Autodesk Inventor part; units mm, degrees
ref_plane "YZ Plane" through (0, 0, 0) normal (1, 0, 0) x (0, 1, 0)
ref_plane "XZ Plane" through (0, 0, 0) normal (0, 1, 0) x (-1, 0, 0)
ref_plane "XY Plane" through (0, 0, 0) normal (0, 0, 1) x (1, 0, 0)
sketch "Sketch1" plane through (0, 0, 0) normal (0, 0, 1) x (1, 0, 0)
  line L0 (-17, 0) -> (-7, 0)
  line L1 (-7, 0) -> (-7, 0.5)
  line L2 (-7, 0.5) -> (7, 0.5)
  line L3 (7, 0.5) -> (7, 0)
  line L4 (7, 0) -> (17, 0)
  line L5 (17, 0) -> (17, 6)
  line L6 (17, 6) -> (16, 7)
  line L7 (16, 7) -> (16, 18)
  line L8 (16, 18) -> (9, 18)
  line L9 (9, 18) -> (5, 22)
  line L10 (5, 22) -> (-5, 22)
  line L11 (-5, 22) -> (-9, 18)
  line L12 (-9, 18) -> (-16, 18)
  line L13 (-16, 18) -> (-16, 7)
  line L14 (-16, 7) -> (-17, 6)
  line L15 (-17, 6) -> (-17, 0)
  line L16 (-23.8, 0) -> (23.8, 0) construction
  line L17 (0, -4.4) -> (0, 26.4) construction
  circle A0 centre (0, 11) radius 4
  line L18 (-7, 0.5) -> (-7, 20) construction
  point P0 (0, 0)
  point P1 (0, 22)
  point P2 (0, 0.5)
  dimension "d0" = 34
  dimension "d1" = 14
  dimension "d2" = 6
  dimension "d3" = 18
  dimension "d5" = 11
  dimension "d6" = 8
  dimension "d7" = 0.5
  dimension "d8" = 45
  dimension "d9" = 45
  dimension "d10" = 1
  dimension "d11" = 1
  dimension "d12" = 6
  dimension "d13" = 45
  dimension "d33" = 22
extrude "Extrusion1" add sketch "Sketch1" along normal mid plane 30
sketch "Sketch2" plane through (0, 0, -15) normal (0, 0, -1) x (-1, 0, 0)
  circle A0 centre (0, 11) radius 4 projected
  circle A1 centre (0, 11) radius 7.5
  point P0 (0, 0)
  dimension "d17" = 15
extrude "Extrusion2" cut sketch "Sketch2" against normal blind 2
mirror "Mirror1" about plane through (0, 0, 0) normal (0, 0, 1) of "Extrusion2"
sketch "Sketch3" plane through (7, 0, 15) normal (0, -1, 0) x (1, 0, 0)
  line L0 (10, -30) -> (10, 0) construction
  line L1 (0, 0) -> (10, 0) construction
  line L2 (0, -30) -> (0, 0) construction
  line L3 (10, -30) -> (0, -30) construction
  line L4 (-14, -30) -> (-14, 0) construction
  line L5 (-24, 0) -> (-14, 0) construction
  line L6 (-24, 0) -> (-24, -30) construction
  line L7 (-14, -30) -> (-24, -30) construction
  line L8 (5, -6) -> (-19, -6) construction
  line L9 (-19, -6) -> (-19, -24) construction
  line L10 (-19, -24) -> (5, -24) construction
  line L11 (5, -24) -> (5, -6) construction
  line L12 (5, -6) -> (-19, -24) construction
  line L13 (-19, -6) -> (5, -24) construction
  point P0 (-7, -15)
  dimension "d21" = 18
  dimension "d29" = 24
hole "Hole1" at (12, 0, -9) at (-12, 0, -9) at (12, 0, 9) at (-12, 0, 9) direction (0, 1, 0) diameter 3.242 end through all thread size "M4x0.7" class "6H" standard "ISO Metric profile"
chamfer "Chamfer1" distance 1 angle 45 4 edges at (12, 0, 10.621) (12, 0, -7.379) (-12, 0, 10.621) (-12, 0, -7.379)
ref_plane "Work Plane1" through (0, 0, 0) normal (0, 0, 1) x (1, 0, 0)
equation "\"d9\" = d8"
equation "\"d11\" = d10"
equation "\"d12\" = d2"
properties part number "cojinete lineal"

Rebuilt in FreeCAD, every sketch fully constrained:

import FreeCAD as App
import Part
import Sketcher


def edges_at(feature, points):
    """Names of the edges that pass closest to the given points."""
    edges = feature.Shape.Edges
    near = lambda p: min(range(len(edges)), key=lambda i: edges[i].distToShape(Part.Vertex(*p))[0])
    return sorted({f"Edge{near(p) + 1}" for p in points})

doc = App.newDocument("Part")
body = doc.addObject("PartDesign::Body", "Body")

# Sketch on XY plane
sketch1 = body.newObject("Sketcher::SketchObject", "Sketch")
sketch1.AttachmentSupport = (doc.getObject("XY_Plane"), [""])
sketch1.MapMode = "FlatFace"
sketch1.addGeometry(Part.LineSegment(App.Vector(-17, 6, 0), App.Vector(-17, 0, 0)), False)
sketch1.addGeometry(Part.LineSegment(App.Vector(-17, 0, 0), App.Vector(-7, 0, 0)), False)
sketch1.addGeometry(Part.LineSegment(App.Vector(-7, 0, 0), App.Vector(-7, 0.5, 0)), False)
sketch1.addGeometry(Part.LineSegment(App.Vector(-7, 0.5, 0), App.Vector(7, 0.5, 0)), False)
sketch1.addGeometry(Part.LineSegment(App.Vector(7, 0.5, 0), App.Vector(7, 0, 0)), False)
sketch1.addGeometry(Part.LineSegment(App.Vector(7, 0, 0), App.Vector(17, 0, 0)), False)
sketch1.addGeometry(Part.LineSegment(App.Vector(17, 0, 0), App.Vector(17, 6, 0)), False)
sketch1.addGeometry(Part.LineSegment(App.Vector(17, 6, 0), App.Vector(16, 7, 0)), False)
sketch1.addGeometry(Part.LineSegment(App.Vector(16, 7, 0), App.Vector(16, 18, 0)), False)
sketch1.addGeometry(Part.LineSegment(App.Vector(16, 18, 0), App.Vector(9, 18, 0)), False)
sketch1.addGeometry(Part.LineSegment(App.Vector(9, 18, 0), App.Vector(5, 22, 0)), False)
sketch1.addGeometry(Part.LineSegment(App.Vector(5, 22, 0), App.Vector(-5, 22, 0)), False)
sketch1.addGeometry(Part.LineSegment(App.Vector(-5, 22, 0), App.Vector(-9, 18, 0)), False)
sketch1.addGeometry(Part.LineSegment(App.Vector(-9, 18, 0), App.Vector(-16, 18, 0)), False)
sketch1.addGeometry(Part.LineSegment(App.Vector(-16, 18, 0), App.Vector(-16, 7, 0)), False)
sketch1.addGeometry(Part.LineSegment(App.Vector(-16, 7, 0), App.Vector(-17, 6, 0)), False)
sketch1.addGeometry(Part.Circle(App.Vector(0, 11, 0), App.Vector(0, 0, 1), 4), False)
sketch1.addConstraint(Sketcher.Constraint("Coincident", 0, 2, 1, 1))
sketch1.addConstraint(Sketcher.Constraint("Coincident", 1, 2, 2, 1))
sketch1.addConstraint(Sketcher.Constraint("Coincident", 2, 2, 3, 1))
sketch1.addConstraint(Sketcher.Constraint("Coincident", 3, 2, 4, 1))
sketch1.addConstraint(Sketcher.Constraint("Coincident", 4, 2, 5, 1))
sketch1.addConstraint(Sketcher.Constraint("Coincident", 5, 2, 6, 1))
sketch1.addConstraint(Sketcher.Constraint("Coincident", 6, 2, 7, 1))
sketch1.addConstraint(Sketcher.Constraint("Coincident", 7, 2, 8, 1))
sketch1.addConstraint(Sketcher.Constraint("Coincident", 8, 2, 9, 1))
sketch1.addConstraint(Sketcher.Constraint("Coincident", 9, 2, 10, 1))
sketch1.addConstraint(Sketcher.Constraint("Coincident", 10, 2, 11, 1))
sketch1.addConstraint(Sketcher.Constraint("Coincident", 11, 2, 12, 1))
sketch1.addConstraint(Sketcher.Constraint("Coincident", 12, 2, 13, 1))
sketch1.addConstraint(Sketcher.Constraint("Coincident", 13, 2, 14, 1))
sketch1.addConstraint(Sketcher.Constraint("Coincident", 14, 2, 15, 1))
sketch1.addConstraint(Sketcher.Constraint("Coincident", 15, 2, 0, 1))
sketch1.addConstraint(Sketcher.Constraint("Vertical", 0))
sketch1.addConstraint(Sketcher.Constraint("Horizontal", 1))
sketch1.addConstraint(Sketcher.Constraint("Vertical", 2))
sketch1.addConstraint(Sketcher.Constraint("Horizontal", 3))
sketch1.addConstraint(Sketcher.Constraint("Vertical", 4))
sketch1.addConstraint(Sketcher.Constraint("Horizontal", 5))
sketch1.addConstraint(Sketcher.Constraint("Vertical", 6))
sketch1.addConstraint(Sketcher.Constraint("Vertical", 8))
sketch1.addConstraint(Sketcher.Constraint("Horizontal", 9))
sketch1.addConstraint(Sketcher.Constraint("Horizontal", 11))
sketch1.addConstraint(Sketcher.Constraint("Horizontal", 13))
sketch1.addConstraint(Sketcher.Constraint("Vertical", 14))
sketch1.addConstraint(Sketcher.Constraint("Symmetric", 1, 2, 4, 2, -1, 1))
sketch1.addConstraint(Sketcher.Constraint("Symmetric", 0, 2, 5, 2, -2))
sketch1.addConstraint(Sketcher.Constraint("Symmetric", 9, 2, 12, 2, -2))
sketch1.addConstraint(Sketcher.Constraint("Symmetric", 7, 2, 14, 2, -2))
sketch1.addConstraint(Sketcher.Constraint("PointOnObject", 16, 3, -2))
sketch1.addConstraint(Sketcher.Constraint("Parallel", 7, 10))
sketch1.addConstraint(Sketcher.Constraint("Perpendicular", 10, 12))
sketch1.addConstraint(Sketcher.Constraint("Parallel", 12, 15))
sketch1.addConstraint(Sketcher.Constraint("Horizontal", 6, 2, 15, 2))
sketch1.addConstraint(Sketcher.Constraint("Equal", 5, 11))
sketch1.addConstraint(Sketcher.Constraint("Diameter", 16, 8.0))
sketch1.addConstraint(Sketcher.Constraint("DistanceX", 3, 1, 3, 2, 14.0))
sketch1.addConstraint(Sketcher.Constraint("DistanceY", 0, 2, 0, 1, 6.0))
sketch1.addConstraint(Sketcher.Constraint("DistanceY", 8, 1, 8, 2, 11.0))
sketch1.addConstraint(Sketcher.Constraint("DistanceY", 2, 1, 2, 2, 0.5))
sketch1.addConstraint(Sketcher.Constraint("DistanceY", -1, 1, 16, 3, 11.0))
sketch1.addConstraint(Sketcher.Constraint("DistanceY", -1, 1, 8, 2, 18.0))
sketch1.addConstraint(Sketcher.Constraint("DistanceY", -1, 1, 10, 2, 22.0))
sketch1.addConstraint(Sketcher.Constraint("DistanceX", 9, 2, 6, 2, 8.0))
pad1 = body.newObject("PartDesign::Pad", "Pad")
pad1.Profile = sketch1
pad1.Length = 30
pad1.Midplane = True

# Sketch on XY plane
sketch2 = body.newObject("Sketcher::SketchObject", "Sketch001")
sketch2.AttachmentSupport = (doc.getObject("XY_Plane"), [""])
sketch2.MapMode = "FlatFace"
sketch2.AttachmentOffset = App.Placement(App.Vector(0, 0, -15), App.Rotation())
sketch2.addGeometry(Part.Circle(App.Vector(0, 11, 0), App.Vector(0, 0, 1), 7.5), False)
sketch2.addGeometry(Part.Circle(App.Vector(0, 11, 0), App.Vector(0, 0, 1), 4), False)
sketch2.addConstraint(Sketcher.Constraint("Coincident", 1, 3, 0, 3))
sketch2.addConstraint(Sketcher.Constraint("PointOnObject", 0, 3, -2))
sketch2.addConstraint(Sketcher.Constraint("Diameter", 0, 15.0))
sketch2.addConstraint(Sketcher.Constraint("Diameter", 1, 8.0))
sketch2.addConstraint(Sketcher.Constraint("DistanceY", -1, 1, 0, 3, 11.0))
pocket1 = body.newObject("PartDesign::Pocket", "Pocket")
pocket1.Profile = sketch2
pocket1.Length = 2
pocket1.Reversed = True
doc.recompute()

mirrored = body.newObject("PartDesign::Mirrored", "Mirrored")
mirrored.Originals = [pocket1]
mirrored.MirrorPlane = (doc.getObject("XY_Plane"), [""])
body.Tip = mirrored

# Sketch on XZ plane
sketch3 = body.newObject("Sketcher::SketchObject", "Sketch002")
sketch3.AttachmentSupport = (doc.getObject("XZ_Plane"), [""])
sketch3.MapMode = "FlatFace"
sketch3.addGeometry(Part.Circle(App.Vector(12, -9, 0), App.Vector(0, 0, 1), 1.6), False)
sketch3.addGeometry(Part.Circle(App.Vector(-12, -9, 0), App.Vector(0, 0, 1), 1.6), False)
sketch3.addGeometry(Part.Circle(App.Vector(12, 9, 0), App.Vector(0, 0, 1), 1.6), False)
sketch3.addGeometry(Part.Circle(App.Vector(-12, 9, 0), App.Vector(0, 0, 1), 1.6), False)
sketch3.addConstraint(Sketcher.Constraint("Equal", 0, 1))
sketch3.addConstraint(Sketcher.Constraint("Equal", 1, 2))
sketch3.addConstraint(Sketcher.Constraint("Equal", 2, 3))
sketch3.addConstraint(Sketcher.Constraint("Symmetric", 1, 3, 2, 3, -1, 1))
sketch3.addConstraint(Sketcher.Constraint("Symmetric", 0, 3, 3, 3, -1, 1))
sketch3.addConstraint(Sketcher.Constraint("Symmetric", 0, 3, 1, 3, -2))
sketch3.addConstraint(Sketcher.Constraint("Diameter", 0, 3.242))
sketch3.addConstraint(Sketcher.Constraint("DistanceX", -1, 1, 0, 3, 12.0))
sketch3.addConstraint(Sketcher.Constraint("DistanceY", 0, 3, -1, 1, 9.0))
doc.recompute()
hole = body.newObject("PartDesign::Hole", "Hole")
hole.Profile = sketch3
hole.ThreadType = "None"
hole.Diameter = 3.242
hole.DepthType = "ThroughAll"
doc.recompute()

chamfer = body.newObject("PartDesign::Chamfer", "Chamfer")
chamfer.Base = (hole, edges_at(hole, [
    (12, 0, 10.621),
    (12, 0, -7.379),
    (-12, 0, 10.621),
    (-12, 0, -7.379),
]))
chamfer.Size = 1

doc.recompute()
